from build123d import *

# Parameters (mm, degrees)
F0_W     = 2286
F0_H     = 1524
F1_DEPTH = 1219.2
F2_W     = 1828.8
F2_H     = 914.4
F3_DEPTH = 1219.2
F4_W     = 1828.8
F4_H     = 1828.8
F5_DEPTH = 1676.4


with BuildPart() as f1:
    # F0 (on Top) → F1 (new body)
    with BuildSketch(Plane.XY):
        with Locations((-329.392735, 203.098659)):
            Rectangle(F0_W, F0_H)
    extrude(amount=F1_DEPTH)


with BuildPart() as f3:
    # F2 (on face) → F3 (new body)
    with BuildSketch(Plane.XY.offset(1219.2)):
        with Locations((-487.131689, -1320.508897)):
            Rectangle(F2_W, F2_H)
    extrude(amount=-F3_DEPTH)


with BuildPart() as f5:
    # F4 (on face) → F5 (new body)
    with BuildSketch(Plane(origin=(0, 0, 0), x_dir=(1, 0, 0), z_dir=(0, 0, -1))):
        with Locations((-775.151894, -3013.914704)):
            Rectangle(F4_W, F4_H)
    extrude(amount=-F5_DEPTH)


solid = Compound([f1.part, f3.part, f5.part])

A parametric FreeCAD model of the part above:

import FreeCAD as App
import Part
import Sketcher

V = App.Vector
Q = App.Units.Quantity


def add_polygon(sketch, points):
    """Adds a closed chain of lines whose ends are joined by coincident constraints."""
    first, n = sketch.GeometryCount, len(points)
    for a, b in zip(points, points[1:] + points[:1]):
        sketch.addGeometry(Part.LineSegment(App.Vector(*a, 0), App.Vector(*b, 0)), False)
    for i in range(n):
        sketch.addConstraint(Sketcher.Constraint("Coincident", first + i, 2, first + (i + 1) % n, 1))

doc = App.newDocument("Part")
body = doc.addObject("PartDesign::Body", "Body")

# Sketch on XY plane
sketch1 = body.newObject("Sketcher::SketchObject", "Sketch")
sketch1.AttachmentSupport = (doc.getObject("XY_Plane"), [""])
sketch1.MapMode = "FlatFace"
add_polygon(sketch1, [(-1472, 965), (-1472, -559), (814, -559), (814, 965)])  # lines 0-3
sketch1.addConstraint([
    Sketcher.Constraint("Vertical", 0),
    Sketcher.Constraint("Horizontal", 1),
    Sketcher.Constraint("Vertical", 2),
    Sketcher.Constraint("Horizontal", 3),
    Sketcher.Constraint("DistanceX", 1, 1, 1, 2, Q("90 in")),
    Sketcher.Constraint("DistanceY", 0, 2, 0, 1, Q("60 in")),
    Sketcher.Constraint("DistanceY", 0, 2, -1, 1, 558.901341),
    Sketcher.Constraint("DistanceX", 0, 2, -1, 1, 1472.392735),
])
pad1 = body.newObject("PartDesign::Pad", "Pad")
pad1.Profile = sketch1
pad1.Length = Q("48 in")
body2 = doc.addObject("PartDesign::Body", "Body001")

# Sketch on XY plane
sketch2 = body2.newObject("Sketcher::SketchObject", "Sketch001")
sketch2.AttachmentSupport = (doc.getObject("XY_Plane001"), [""])
sketch2.MapMode = "FlatFace"
sketch2.AttachmentOffset = App.Placement(V(0, 0, 48 * 25.4), App.Rotation())
add_polygon(sketch2, [(-1402, -863), (-1402, -1778), (427, -1778), (427, -863)])  # lines 0-3
sketch2.addConstraint([
    Sketcher.Constraint("Vertical", 0),
    Sketcher.Constraint("Horizontal", 1),
    Sketcher.Constraint("Vertical", 2),
    Sketcher.Constraint("Horizontal", 3),
    Sketcher.Constraint("DistanceX", 1, 1, 1, 2, Q("72 in")),
    Sketcher.Constraint("DistanceY", 0, 2, 0, 1, Q("36 in")),
    Sketcher.Constraint("DistanceX", 0, 2, -1, 1, 1401.531689),
    Sketcher.Constraint("DistanceY", 0, 2, -1, 1, 1777.708897),
])
pad2 = body2.newObject("PartDesign::Pad", "Pad001")
pad2.Profile = sketch2
pad2.Length = Q("48 in")
pad2.Reversed = True
body3 = doc.addObject("PartDesign::Body", "Body002")

# Sketch on XY plane
sketch3 = body3.newObject("Sketcher::SketchObject", "Sketch002")
sketch3.AttachmentSupport = (doc.getObject("XY_Plane002"), [""])
sketch3.MapMode = "FlatFace"
add_polygon(sketch3, [(-1690, 2100), (-1690, 3928), (139, 3928), (139, 2100)])  # lines 0-3
sketch3.addConstraint([
    Sketcher.Constraint("Vertical", 0),
    Sketcher.Constraint("Horizontal", 1),
    Sketcher.Constraint("Vertical", 2),
    Sketcher.Constraint("Horizontal", 3),
    Sketcher.Constraint("Equal", 3, 0),
    Sketcher.Constraint("DistanceX", 1, 1, 1, 2, Q("72 in")),
    Sketcher.Constraint("DistanceX", 0, 2, -1, 1, 1689.551894),
    Sketcher.Constraint("DistanceY", -1, 1, 0, 2, 3928.314704),
])
pad3 = body3.newObject("PartDesign::Pad", "Pad002")
pad3.Profile = sketch3
pad3.Length = Q("66 in")

doc.recompute()
